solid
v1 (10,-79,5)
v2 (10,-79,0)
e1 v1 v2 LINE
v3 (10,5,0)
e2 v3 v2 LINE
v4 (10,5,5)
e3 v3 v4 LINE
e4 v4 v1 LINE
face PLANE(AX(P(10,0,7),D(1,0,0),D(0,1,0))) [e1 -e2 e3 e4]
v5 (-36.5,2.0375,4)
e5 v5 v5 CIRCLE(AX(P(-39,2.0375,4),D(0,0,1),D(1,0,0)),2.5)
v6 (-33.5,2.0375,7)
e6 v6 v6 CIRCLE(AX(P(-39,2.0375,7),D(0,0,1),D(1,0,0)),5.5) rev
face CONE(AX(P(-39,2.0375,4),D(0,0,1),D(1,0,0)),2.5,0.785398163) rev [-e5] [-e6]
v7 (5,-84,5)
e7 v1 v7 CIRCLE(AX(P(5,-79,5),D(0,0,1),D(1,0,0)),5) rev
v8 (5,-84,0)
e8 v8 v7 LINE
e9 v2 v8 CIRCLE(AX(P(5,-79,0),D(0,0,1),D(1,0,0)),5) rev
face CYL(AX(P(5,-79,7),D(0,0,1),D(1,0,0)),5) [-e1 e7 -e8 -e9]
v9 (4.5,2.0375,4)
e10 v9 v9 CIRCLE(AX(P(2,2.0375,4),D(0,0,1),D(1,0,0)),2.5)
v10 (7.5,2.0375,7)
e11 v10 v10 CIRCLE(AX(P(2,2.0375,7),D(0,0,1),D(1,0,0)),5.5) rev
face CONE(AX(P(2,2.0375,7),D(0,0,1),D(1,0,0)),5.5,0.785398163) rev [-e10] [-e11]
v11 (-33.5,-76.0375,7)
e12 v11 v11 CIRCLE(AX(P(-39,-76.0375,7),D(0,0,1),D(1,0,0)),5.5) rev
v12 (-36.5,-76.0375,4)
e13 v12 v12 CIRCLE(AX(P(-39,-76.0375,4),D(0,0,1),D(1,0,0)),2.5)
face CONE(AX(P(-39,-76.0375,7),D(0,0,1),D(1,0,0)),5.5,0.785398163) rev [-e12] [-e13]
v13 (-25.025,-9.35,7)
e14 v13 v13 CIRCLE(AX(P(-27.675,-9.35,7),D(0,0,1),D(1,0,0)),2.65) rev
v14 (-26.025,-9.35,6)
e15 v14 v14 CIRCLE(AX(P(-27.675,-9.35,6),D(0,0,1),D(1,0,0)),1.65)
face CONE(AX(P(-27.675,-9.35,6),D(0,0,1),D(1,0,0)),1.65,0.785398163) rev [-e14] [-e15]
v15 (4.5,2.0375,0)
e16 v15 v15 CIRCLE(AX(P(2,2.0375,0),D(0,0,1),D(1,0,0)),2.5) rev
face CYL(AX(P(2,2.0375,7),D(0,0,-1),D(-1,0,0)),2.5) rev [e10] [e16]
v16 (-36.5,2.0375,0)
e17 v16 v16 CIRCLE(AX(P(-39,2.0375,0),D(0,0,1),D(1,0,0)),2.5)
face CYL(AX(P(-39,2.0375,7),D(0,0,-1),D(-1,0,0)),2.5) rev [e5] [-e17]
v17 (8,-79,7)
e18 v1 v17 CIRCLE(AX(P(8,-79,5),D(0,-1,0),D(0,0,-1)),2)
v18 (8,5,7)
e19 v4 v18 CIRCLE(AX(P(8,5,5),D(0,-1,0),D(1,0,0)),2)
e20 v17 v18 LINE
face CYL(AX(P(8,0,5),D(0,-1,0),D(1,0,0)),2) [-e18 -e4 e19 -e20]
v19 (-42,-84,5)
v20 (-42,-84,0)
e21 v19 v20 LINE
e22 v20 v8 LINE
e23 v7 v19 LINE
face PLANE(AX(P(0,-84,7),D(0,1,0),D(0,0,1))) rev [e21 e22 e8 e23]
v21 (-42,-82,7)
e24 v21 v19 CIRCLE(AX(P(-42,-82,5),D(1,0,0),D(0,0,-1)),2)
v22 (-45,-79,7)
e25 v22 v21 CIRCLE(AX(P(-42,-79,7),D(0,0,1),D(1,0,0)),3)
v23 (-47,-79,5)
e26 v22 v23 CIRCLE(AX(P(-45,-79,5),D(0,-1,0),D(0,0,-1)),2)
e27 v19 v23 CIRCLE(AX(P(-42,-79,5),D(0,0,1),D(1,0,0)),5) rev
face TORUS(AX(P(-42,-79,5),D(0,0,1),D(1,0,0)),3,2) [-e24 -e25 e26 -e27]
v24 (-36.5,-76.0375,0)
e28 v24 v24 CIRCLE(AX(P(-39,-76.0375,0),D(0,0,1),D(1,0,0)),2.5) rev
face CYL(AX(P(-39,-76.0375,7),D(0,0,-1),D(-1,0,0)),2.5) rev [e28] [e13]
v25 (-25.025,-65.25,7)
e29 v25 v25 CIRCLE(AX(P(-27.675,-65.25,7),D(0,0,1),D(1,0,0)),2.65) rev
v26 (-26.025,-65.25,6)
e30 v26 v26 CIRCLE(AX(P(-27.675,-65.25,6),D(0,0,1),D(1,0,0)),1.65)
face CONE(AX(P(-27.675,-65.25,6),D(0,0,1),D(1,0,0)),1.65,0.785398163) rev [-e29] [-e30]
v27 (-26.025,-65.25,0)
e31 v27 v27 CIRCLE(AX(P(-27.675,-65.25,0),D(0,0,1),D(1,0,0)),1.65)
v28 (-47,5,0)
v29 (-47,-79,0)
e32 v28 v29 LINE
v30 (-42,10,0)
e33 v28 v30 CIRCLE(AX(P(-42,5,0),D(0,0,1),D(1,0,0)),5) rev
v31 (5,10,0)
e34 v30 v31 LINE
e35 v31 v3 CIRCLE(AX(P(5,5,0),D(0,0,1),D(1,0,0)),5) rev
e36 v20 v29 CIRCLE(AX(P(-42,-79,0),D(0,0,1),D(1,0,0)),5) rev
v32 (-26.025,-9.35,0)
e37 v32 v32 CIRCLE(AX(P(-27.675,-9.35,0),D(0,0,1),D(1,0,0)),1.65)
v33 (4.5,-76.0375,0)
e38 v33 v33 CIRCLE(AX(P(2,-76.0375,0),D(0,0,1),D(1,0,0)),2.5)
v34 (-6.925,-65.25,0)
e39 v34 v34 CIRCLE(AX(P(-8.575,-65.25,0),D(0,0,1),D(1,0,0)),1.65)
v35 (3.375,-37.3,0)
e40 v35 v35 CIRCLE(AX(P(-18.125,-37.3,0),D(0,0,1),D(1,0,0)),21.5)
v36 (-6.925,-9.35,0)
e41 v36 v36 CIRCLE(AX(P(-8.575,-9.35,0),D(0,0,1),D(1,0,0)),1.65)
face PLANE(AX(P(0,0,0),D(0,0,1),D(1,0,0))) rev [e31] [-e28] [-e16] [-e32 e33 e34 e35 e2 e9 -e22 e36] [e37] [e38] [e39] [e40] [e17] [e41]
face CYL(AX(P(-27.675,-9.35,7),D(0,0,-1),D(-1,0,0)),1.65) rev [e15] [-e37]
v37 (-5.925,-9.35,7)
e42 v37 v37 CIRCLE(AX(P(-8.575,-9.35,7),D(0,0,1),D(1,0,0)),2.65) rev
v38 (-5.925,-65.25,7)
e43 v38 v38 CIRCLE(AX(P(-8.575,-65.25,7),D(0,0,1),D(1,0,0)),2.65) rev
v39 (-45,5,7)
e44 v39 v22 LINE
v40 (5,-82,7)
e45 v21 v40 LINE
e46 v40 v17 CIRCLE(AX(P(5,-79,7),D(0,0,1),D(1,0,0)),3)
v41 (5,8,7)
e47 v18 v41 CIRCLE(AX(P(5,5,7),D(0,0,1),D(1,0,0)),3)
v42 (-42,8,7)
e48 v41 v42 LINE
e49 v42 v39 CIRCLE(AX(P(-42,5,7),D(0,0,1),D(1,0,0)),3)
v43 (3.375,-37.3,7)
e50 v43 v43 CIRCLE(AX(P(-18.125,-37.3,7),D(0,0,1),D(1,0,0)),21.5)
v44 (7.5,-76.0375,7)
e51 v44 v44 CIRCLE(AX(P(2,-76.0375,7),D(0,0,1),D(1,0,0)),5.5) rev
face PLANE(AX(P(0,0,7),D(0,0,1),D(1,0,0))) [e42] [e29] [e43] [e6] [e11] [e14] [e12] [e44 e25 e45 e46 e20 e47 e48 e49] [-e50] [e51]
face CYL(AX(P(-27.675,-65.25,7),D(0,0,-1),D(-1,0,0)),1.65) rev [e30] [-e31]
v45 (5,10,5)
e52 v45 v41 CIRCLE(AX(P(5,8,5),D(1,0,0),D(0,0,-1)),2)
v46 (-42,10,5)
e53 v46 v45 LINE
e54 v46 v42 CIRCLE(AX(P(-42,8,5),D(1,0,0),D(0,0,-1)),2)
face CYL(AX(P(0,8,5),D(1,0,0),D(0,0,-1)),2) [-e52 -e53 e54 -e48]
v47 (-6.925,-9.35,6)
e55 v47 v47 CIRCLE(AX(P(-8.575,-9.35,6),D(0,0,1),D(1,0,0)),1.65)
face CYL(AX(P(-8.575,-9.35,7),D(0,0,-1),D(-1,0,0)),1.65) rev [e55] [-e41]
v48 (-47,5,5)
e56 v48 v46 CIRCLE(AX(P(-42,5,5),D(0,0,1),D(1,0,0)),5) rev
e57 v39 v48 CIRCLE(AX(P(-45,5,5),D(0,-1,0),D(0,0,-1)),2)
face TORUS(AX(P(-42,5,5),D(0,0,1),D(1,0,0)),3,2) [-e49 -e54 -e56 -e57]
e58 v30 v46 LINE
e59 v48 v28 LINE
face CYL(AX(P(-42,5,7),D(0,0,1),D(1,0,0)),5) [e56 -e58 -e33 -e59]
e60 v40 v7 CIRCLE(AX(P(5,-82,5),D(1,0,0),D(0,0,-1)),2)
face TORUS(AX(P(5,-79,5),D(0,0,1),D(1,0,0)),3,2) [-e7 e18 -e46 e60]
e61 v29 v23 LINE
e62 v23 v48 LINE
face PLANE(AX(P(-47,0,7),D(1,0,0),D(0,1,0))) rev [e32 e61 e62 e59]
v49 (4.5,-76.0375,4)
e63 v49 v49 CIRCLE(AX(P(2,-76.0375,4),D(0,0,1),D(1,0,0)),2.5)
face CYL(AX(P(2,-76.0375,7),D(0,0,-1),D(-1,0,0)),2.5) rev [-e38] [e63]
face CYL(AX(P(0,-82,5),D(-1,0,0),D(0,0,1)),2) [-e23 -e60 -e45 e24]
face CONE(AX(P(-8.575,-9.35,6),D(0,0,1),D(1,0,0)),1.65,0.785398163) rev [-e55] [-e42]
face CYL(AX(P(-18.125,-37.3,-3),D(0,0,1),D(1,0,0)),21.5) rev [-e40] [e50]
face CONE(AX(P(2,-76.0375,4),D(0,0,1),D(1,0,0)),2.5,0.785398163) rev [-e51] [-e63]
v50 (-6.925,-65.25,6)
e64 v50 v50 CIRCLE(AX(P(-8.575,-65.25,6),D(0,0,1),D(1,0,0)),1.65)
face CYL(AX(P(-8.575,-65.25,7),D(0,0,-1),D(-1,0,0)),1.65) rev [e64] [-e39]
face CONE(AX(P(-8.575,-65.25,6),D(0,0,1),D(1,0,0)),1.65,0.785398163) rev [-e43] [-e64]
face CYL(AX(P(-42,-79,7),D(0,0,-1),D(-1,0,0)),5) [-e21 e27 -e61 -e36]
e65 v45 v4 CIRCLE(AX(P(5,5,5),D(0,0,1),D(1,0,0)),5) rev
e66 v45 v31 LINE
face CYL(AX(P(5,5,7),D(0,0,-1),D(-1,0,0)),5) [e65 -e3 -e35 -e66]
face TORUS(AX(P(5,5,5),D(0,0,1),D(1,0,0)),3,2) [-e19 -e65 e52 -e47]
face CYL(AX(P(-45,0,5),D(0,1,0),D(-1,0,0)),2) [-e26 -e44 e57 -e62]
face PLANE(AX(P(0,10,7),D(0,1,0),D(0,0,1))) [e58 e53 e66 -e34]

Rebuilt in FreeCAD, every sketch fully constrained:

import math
import FreeCAD as App
import Part
import Sketcher

V = App.Vector
Q = App.Units.Quantity


def edges_at(feature, points):
    """Names of the edges that pass closest to the given points."""
    edges = feature.Shape.Edges
    near = lambda p: min(range(len(edges)), key=lambda i: edges[i].distToShape(Part.Vertex(*p))[0])
    return sorted({f"Edge{near(p) + 1}" for p in points})

doc = App.newDocument("Part")
params = doc.addObject("Spreadsheet::Sheet", "Params")
for row, (alias, value) in enumerate([
    ("sketch1_diameter", "5 mm"),
    ("sketch1_diameter2", "3.3 mm"),
    ("sketch1_width", "57 mm"),
    ("sketch1_height", "94 mm"),
    ("pad1_length", "7 mm"),
    ("chamfer_size", "3 mm"),
    ("fillet_radius", "5 mm"),
    ("fillet2_radius", "2 mm"),
    ("chamfer2_size", "1 mm"),
    ("sketch2_radius", "21.5 mm"),
    ("pocket1_length", "10 mm"),
], start=1):
    params.set(f"A{row}", alias)
    params.set(f"B{row}", "=" + value)
    params.setAlias(f"B{row}", alias)

body = doc.addObject("PartDesign::Body", "Body")

# Sketch on XY plane
sketch1 = body.newObject("Sketcher::SketchObject", "Sketch")
sketch1.AttachmentSupport = (doc.getObject("XY_Plane"), [""])
sketch1.MapMode = "FlatFace"
sketch1.addGeometry([
    Part.LineSegment(V(-47, 10, 0), V(-47, -84, 0)),  # 0
    Part.LineSegment(V(-47, -84, 0), V(10, -84, 0)),  # 1
    Part.LineSegment(V(10, -84, 0), V(10, 10, 0)),  # 2
    Part.LineSegment(V(10, 10, 0), V(-47, 10, 0)),  # 3
    Part.Circle(V(-39, -76, 0), V(0, 0, 1), 2.5),  # 4
    Part.ArcOfCircle(Part.Circle(V(-27.7, -65.2, 0), V(0, 0, 1), 1.6), math.radians(0), math.radians(90)),  # 5
    Part.ArcOfCircle(Part.Circle(V(-27.7, -65.2, 0), V(0, 0, 1), 1.6), math.radians(90), math.radians(360)),  # 6
    Part.Circle(V(-8.6, -65.2, 0), V(0, 0, 1), 1.6),  # 7
    Part.Circle(V(2, -76, 0), V(0, 0, 1), 2.5),  # 8
    Part.Circle(V(-39, 2, 0), V(0, 0, 1), 2.5),  # 9
    Part.ArcOfCircle(Part.Circle(V(-27.7, -9.3, 0), V(0, 0, 1), 1.6), math.radians(0), math.radians(270)),  # 10
    Part.ArcOfCircle(Part.Circle(V(-27.7, -9.3, 0), V(0, 0, 1), 1.6), math.radians(-90), math.radians(0)),  # 11
    Part.Circle(V(-8.6, -9.3, 0), V(0, 0, 1), 1.6),  # 12
    Part.Circle(V(2, 2, 0), V(0, 0, 1), 2.5),  # 13
], False)
sketch1.addConstraint([
    Sketcher.Constraint("Coincident", 0, 2, 1, 1),
    Sketcher.Constraint("Coincident", 1, 2, 2, 1),
    Sketcher.Constraint("Coincident", 2, 2, 3, 1),
    Sketcher.Constraint("Coincident", 3, 2, 0, 1),
    Sketcher.Constraint("Tangent", 5, 1, 6, 2),
    Sketcher.Constraint("Coincident", 6, 1, 5, 2),
    Sketcher.Constraint("Tangent", 10, 1, 11, 2),
    Sketcher.Constraint("Coincident", 11, 1, 10, 2),
    Sketcher.Constraint("Vertical", 0),
    Sketcher.Constraint("Horizontal", 1),
    Sketcher.Constraint("Vertical", 2),
    Sketcher.Constraint("Horizontal", 3),
    Sketcher.Constraint("Equal", 6, 7),
    Sketcher.Constraint("Equal", 4, 8),
    Sketcher.Constraint("Equal", 8, 9),
    Sketcher.Constraint("Equal", 7, 10),
    Sketcher.Constraint("Equal", 11, 12),
    Sketcher.Constraint("Equal", 9, 13),
    Sketcher.Constraint("Horizontal", 6, 3, 7, 3),
    Sketcher.Constraint("Horizontal", 4, 3, 8, 3),
    Sketcher.Constraint("Horizontal", 11, 3, 12, 3),
    Sketcher.Constraint("Horizontal", 9, 3, 13, 3),
    Sketcher.Constraint("Horizontal", 7, 3, 5, 1),
    Sketcher.Constraint("Horizontal", 12, 3, 10, 1),
    Sketcher.Constraint("Vertical", 4, 3, 9, 3),
    Sketcher.Constraint("Vertical", 6, 3, 10, 3),
    Sketcher.Constraint("Vertical", 7, 3, 12, 3),
    Sketcher.Constraint("Vertical", 8, 3, 13, 3),
    Sketcher.Constraint("Vertical", 11, 3, 6, 1),
    Sketcher.Constraint("Vertical", 6, 1, 11, 1),
    Sketcher.Constraint("Diameter", 4, Q("5 mm")),
    Sketcher.Constraint("Diameter", 7, Q("3.3 mm")),
    Sketcher.Constraint("DistanceX", 1, 1, 1, 2, Q("57 mm")),
    Sketcher.Constraint("DistanceY", 0, 2, 0, 1, Q("94 mm")),
    Sketcher.Constraint("DistanceX", 4, 3, -1, 1, Q("39 mm")),
    Sketcher.Constraint("DistanceX", -1, 1, 8, 3, Q("2 mm")),
    Sketcher.Constraint("DistanceX", 0, 2, -1, 1, Q("47 mm")),
    Sketcher.Constraint("DistanceY", 0, 2, -1, 1, Q("84 mm")),
    Sketcher.Constraint("DistanceY", 11, 1, -1, 1, Q("11 mm")),
    Sketcher.Constraint("DistanceY", 6, 1, -1, 1, Q("63.6 mm")),
    Sketcher.Constraint("DistanceX", 5, 3, 7, 3, Q("19.1 mm")),
    Sketcher.Constraint("DistanceX", 5, 3, -1, 1, Q("27.675 mm")),
    Sketcher.Constraint("DistanceY", 4, 3, 9, 3, Q("78.075 mm")),
    Sketcher.Constraint("DistanceY", 4, 3, -1, 1, Q("76.0375 mm")),
])
sketch1.setExpression("Constraints[30]", "Params.sketch1_diameter")
sketch1.setExpression("Constraints[31]", "Params.sketch1_diameter2")
sketch1.setExpression("Constraints[32]", "Params.sketch1_width")
sketch1.setExpression("Constraints[33]", "Params.sketch1_height")
pad1 = body.newObject("PartDesign::Pad", "Pad")
pad1.Profile = sketch1
pad1.setExpression("Length", "Params.pad1_length")
doc.recompute()

chamfer = body.newObject("PartDesign::Chamfer", "Chamfer")
chamfer.Base = (pad1, edges_at(pad1, [
    (-0.5, -76.037, 7),
    (-41.5, -76.037, 7),
    (-0.5, 2.038, 7),
    (-41.5, 2.038, 7),
]))
chamfer.setExpression("Size", "Params.chamfer_size")
doc.recompute()

fillet = body.newObject("PartDesign::Fillet", "Fillet")
fillet.Base = (chamfer, edges_at(chamfer, [
    (10, 10, 3.5),
    (10, -84, 3.5),
    (-47, -84, 3.5),
    (-47, 10, 3.5),
]))
fillet.setExpression("Radius", "Params.fillet_radius")
doc.recompute()

fillet2 = body.newObject("PartDesign::Fillet", "Fillet001")
fillet2.Base = (fillet, edges_at(fillet, [
    (-18.5, 10, 7),
    (10, -37, 7),
    (-47, -37, 7),
    (-18.5, -84, 7),
    (8.536, -82.536, 7),
    (-45.536, -82.536, 7),
    (-45.536, 8.536, 7),
    (8.536, 8.536, 7),
]))
fillet2.setExpression("Radius", "Params.fillet2_radius")
doc.recompute()

chamfer2 = body.newObject("PartDesign::Chamfer", "Chamfer001")
chamfer2.Base = (fillet2, edges_at(fillet2, [
    (-28.842, -8.183, 7),
    (-10.225, -65.25, 7),
    (-28.842, -66.417, 7),
    (-10.225, -9.35, 7),
]))
chamfer2.setExpression("Size", "Params.chamfer2_size")

# Sketch on XY plane
sketch2 = body.newObject("Sketcher::SketchObject", "Sketch001")
sketch2.AttachmentSupport = (doc.getObject("XY_Plane"), [""])
sketch2.MapMode = "FlatFace"
sketch2.AttachmentOffset = App.Placement(V(0, 0, 7), App.Rotation())
sketch2.addGeometry([
    Part.ArcOfCircle(Part.Circle(V(-18, -37, 0), V(0, 0, 1), 21), math.radians(116), math.radians(244)),  # 0
    Part.ArcOfCircle(Part.Circle(V(-18, -37, 0), V(0, 0, 1), 21), math.radians(-116), math.radians(-64)),  # 1
    Part.ArcOfCircle(Part.Circle(V(-18, -37, 0), V(0, 0, 1), 22), math.radians(-64), math.radians(0)),  # 2
    Part.ArcOfCircle(Part.Circle(V(-18, -37, 0), V(0, 0, 1), 22), math.radians(0), math.radians(64)),  # 3
    Part.ArcOfCircle(Part.Circle(V(-18, -37, 0), V(0, 0, 1), 21), math.radians(64), math.radians(116)),  # 4
], False)
sketch2.addConstraint([
    Sketcher.Constraint("Tangent", 0, 2, 1, 1),
    Sketcher.Constraint("Tangent", 1, 2, 2, 1),
    Sketcher.Constraint("Tangent", 2, 2, 3, 1),
    Sketcher.Constraint("Tangent", 3, 2, 4, 1),
    Sketcher.Constraint("Tangent", 4, 2, 0, 1),
    Sketcher.Constraint("Coincident", 2, 3, 0, 3),
    Sketcher.Constraint("Horizontal", 0, 2, 1, 2),
    Sketcher.Constraint("Horizontal", 4, 3, 2, 2),
    Sketcher.Constraint("Horizontal", 3, 2, 4, 2),
    Sketcher.Constraint("Vertical", 1, 2, 3, 2),
    Sketcher.Constraint("Radius", 0, Q("21.5 mm")),
    Sketcher.Constraint("DistanceY", 0, 3, -1, 1, Q("37.3 mm")),
    Sketcher.Constraint("DistanceX", 0, 2, 1, 2, Q("19.1 mm")),
    Sketcher.Constraint("DistanceX", 0, 3, -1, 1, Q("18.125 mm")),
])
sketch2.setExpression("Constraints[10]", "Params.sketch2_radius")
pocket1 = body.newObject("PartDesign::Pocket", "Pocket")
pocket1.Profile = sketch2
pocket1.setExpression("Length", "Params.pocket1_length")

doc.recompute()
